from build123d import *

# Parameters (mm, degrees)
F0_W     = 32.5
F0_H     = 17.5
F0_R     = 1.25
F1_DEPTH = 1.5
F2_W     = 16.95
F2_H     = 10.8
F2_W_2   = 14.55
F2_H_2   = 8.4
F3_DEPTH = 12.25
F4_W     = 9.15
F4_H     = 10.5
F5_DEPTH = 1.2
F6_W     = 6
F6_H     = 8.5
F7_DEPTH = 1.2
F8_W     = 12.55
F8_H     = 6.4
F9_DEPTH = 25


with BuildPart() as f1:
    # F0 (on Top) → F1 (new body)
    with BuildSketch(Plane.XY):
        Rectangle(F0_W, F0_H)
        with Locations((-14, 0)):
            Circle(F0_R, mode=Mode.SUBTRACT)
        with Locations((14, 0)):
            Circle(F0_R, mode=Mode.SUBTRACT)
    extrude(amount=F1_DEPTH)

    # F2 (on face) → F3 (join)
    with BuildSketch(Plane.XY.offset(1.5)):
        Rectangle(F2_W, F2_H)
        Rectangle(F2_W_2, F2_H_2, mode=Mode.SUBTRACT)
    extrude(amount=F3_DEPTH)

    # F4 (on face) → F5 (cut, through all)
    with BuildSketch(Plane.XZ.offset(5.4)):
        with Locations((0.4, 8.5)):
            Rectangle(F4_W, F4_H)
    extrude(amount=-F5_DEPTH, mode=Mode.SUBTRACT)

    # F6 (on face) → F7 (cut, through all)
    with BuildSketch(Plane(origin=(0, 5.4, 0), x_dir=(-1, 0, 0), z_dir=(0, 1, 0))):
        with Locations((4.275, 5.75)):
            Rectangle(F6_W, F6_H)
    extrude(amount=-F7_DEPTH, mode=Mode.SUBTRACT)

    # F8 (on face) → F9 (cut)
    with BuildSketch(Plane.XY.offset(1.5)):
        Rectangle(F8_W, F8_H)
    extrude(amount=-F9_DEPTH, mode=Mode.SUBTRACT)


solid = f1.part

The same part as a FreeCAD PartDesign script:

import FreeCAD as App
import Part
import Sketcher
Q = App.Units.Quantity

doc = App.newDocument("Part")
body = doc.addObject("PartDesign::Body", "Body")

# Sketch on XY plane
sketch1 = doc.addObject("Sketcher::SketchObject", "Sketch")
body.addObject(sketch1)
sketch1.AttachmentSupport = (doc.XY_Plane, [""])
sketch1.MapMode = "FlatFace"
sketch1.addGeometry(Part.LineSegment(App.Vector(-16.25, 8.75, 0), App.Vector(-16.25, -8.75, 0)), False)
sketch1.addGeometry(Part.LineSegment(App.Vector(-16.25, -8.75, 0), App.Vector(16.25, -8.75, 0)), False)
sketch1.addGeometry(Part.LineSegment(App.Vector(16.25, -8.75, 0), App.Vector(16.25, 8.75, 0)), False)
sketch1.addGeometry(Part.LineSegment(App.Vector(16.25, 8.75, 0), App.Vector(-16.25, 8.75, 0)), False)
sketch1.addGeometry(Part.Circle(App.Vector(-14, 0, 0), App.Vector(0, 0, 1), 1.25), False)
sketch1.addGeometry(Part.Circle(App.Vector(14, 0, 0), App.Vector(0, 0, 1), 1.25), False)
sketch1.addConstraint(Sketcher.Constraint("Coincident", 0, 2, 1, 1))
sketch1.addConstraint(Sketcher.Constraint("Coincident", 1, 2, 2, 1))
sketch1.addConstraint(Sketcher.Constraint("Coincident", 2, 2, 3, 1))
sketch1.addConstraint(Sketcher.Constraint("Coincident", 3, 2, 0, 1))
sketch1.addConstraint(Sketcher.Constraint("Vertical", 0))
sketch1.addConstraint(Sketcher.Constraint("Horizontal", 1))
sketch1.addConstraint(Sketcher.Constraint("Vertical", 2))
sketch1.addConstraint(Sketcher.Constraint("Horizontal", 3))
sketch1.addConstraint(Sketcher.Constraint("Equal", 4, 5))
sketch1.addConstraint(Sketcher.Constraint("Symmetric", 4, 3, 5, 3, -1, 1))
sketch1.addConstraint(Sketcher.Constraint("Symmetric", 0, 2, 2, 2, -1, 1))
sketch1.addConstraint(Sketcher.Constraint("PointOnObject", 4, 3, -1))
sketch1.addConstraint(Sketcher.Constraint("Diameter", 4, Q("2.5 mm")))
sketch1.addConstraint(Sketcher.Constraint("DistanceX", 1, 1, 1, 2, Q("32.5 mm")))
sketch1.addConstraint(Sketcher.Constraint("DistanceY", 0, 2, 0, 1, Q("17.5 mm")))
sketch1.addConstraint(Sketcher.Constraint("DistanceX", 4, 3, -1, 1, Q("14 mm")))
pad1 = doc.addObject("PartDesign::Pad", "Pad")
body.addObject(pad1)
pad1.Profile = sketch1
pad1.Length = 1.5

# Sketch on XY plane
sketch2 = doc.addObject("Sketcher::SketchObject", "Sketch001")
body.addObject(sketch2)
sketch2.AttachmentSupport = (doc.XY_Plane, [""])
sketch2.MapMode = "FlatFace"
sketch2.AttachmentOffset = App.Placement(App.Vector(0, 0, 1.5), App.Rotation())
sketch2.addGeometry(Part.LineSegment(App.Vector(-8.475, 5.4, 0), App.Vector(-8.475, -5.4, 0)), False)
sketch2.addGeometry(Part.LineSegment(App.Vector(-8.475, -5.4, 0), App.Vector(8.475, -5.4, 0)), False)
sketch2.addGeometry(Part.LineSegment(App.Vector(8.475, -5.4, 0), App.Vector(8.475, 5.4, 0)), False)
sketch2.addGeometry(Part.LineSegment(App.Vector(8.475, 5.4, 0), App.Vector(-8.475, 5.4, 0)), False)
sketch2.addGeometry(Part.LineSegment(App.Vector(7.275, -4.2, 0), App.Vector(-7.275, -4.2, 0)), False)
sketch2.addGeometry(Part.LineSegment(App.Vector(-7.275, -4.2, 0), App.Vector(-7.275, 4.2, 0)), False)
sketch2.addGeometry(Part.LineSegment(App.Vector(-7.275, 4.2, 0), App.Vector(7.275, 4.2, 0)), False)
sketch2.addGeometry(Part.LineSegment(App.Vector(7.275, 4.2, 0), App.Vector(7.275, -4.2, 0)), False)
sketch2.addConstraint(Sketcher.Constraint("Coincident", 0, 2, 1, 1))
sketch2.addConstraint(Sketcher.Constraint("Coincident", 1, 2, 2, 1))
sketch2.addConstraint(Sketcher.Constraint("Coincident", 2, 2, 3, 1))
sketch2.addConstraint(Sketcher.Constraint("Coincident", 3, 2, 0, 1))
sketch2.addConstraint(Sketcher.Constraint("Coincident", 4, 2, 5, 1))
sketch2.addConstraint(Sketcher.Constraint("Coincident", 5, 2, 6, 1))
sketch2.addConstraint(Sketcher.Constraint("Coincident", 6, 2, 7, 1))
sketch2.addConstraint(Sketcher.Constraint("Coincident", 7, 2, 4, 1))
sketch2.addConstraint(Sketcher.Constraint("Vertical", 0))
sketch2.addConstraint(Sketcher.Constraint("Horizontal", 1))
sketch2.addConstraint(Sketcher.Constraint("Vertical", 2))
sketch2.addConstraint(Sketcher.Constraint("Horizontal", 3))
sketch2.addConstraint(Sketcher.Constraint("Horizontal", 4))
sketch2.addConstraint(Sketcher.Constraint("Vertical", 5))
sketch2.addConstraint(Sketcher.Constraint("Horizontal", 6))
sketch2.addConstraint(Sketcher.Constraint("Vertical", 7))
sketch2.addConstraint(Sketcher.Constraint("Symmetric", 0, 2, 2, 2, -1, 1))
sketch2.addConstraint(Sketcher.Constraint("Symmetric", 4, 2, 6, 2, -1, 1))
sketch2.addConstraint(Sketcher.Constraint("DistanceY", 0, 2, 0, 1, Q("10.8 mm")))
sketch2.addConstraint(Sketcher.Constraint("DistanceY", 5, 1, 5, 2, Q("8.4 mm")))
sketch2.addConstraint(Sketcher.Constraint("DistanceX", 1, 1, 1, 2, Q("16.95 mm")))
sketch2.addConstraint(Sketcher.Constraint("DistanceX", 4, 2, 4, 1, Q("14.55 mm")))
pad2 = doc.addObject("PartDesign::Pad", "Pad001")
body.addObject(pad2)
pad2.Profile = sketch2
pad2.Length = 12.25

# Sketch on XZ plane
sketch3 = doc.addObject("Sketcher::SketchObject", "Sketch002")
body.addObject(sketch3)
sketch3.AttachmentSupport = (doc.XZ_Plane, [""])
sketch3.MapMode = "FlatFace"
sketch3.AttachmentOffset = App.Placement(App.Vector(0, 0, 5.4), App.Rotation())
sketch3.addGeometry(Part.LineSegment(App.Vector(-4.175, 13.75, 0), App.Vector(-4.175, 3.25, 0)), False)
sketch3.addGeometry(Part.LineSegment(App.Vector(-4.175, 3.25, 0), App.Vector(4.975, 3.25, 0)), False)
sketch3.addGeometry(Part.LineSegment(App.Vector(4.975, 3.25, 0), App.Vector(4.975, 13.75, 0)), False)
sketch3.addGeometry(Part.LineSegment(App.Vector(4.975, 13.75, 0), App.Vector(-4.175, 13.75, 0)), False)
sketch3.addConstraint(Sketcher.Constraint("Coincident", 0, 2, 1, 1))
sketch3.addConstraint(Sketcher.Constraint("Coincident", 1, 2, 2, 1))
sketch3.addConstraint(Sketcher.Constraint("Coincident", 2, 2, 3, 1))
sketch3.addConstraint(Sketcher.Constraint("Coincident", 3, 2, 0, 1))
sketch3.addConstraint(Sketcher.Constraint("Vertical", 0))
sketch3.addConstraint(Sketcher.Constraint("Horizontal", 1))
sketch3.addConstraint(Sketcher.Constraint("Vertical", 2))
sketch3.addConstraint(Sketcher.Constraint("Horizontal", 3))
sketch3.addConstraint(Sketcher.Constraint("DistanceY", 0, 2, 0, 1, Q("10.5 mm")))
sketch3.addConstraint(Sketcher.Constraint("DistanceX", 1, 1, 1, 2, Q("9.15 mm")))
sketch3.addConstraint(Sketcher.Constraint("DistanceY", -1, 1, 0, 2, Q("3.25 mm")))
sketch3.addConstraint(Sketcher.Constraint("DistanceX", 0, 2, -1, 1, Q("4.175 mm")))
pocket1 = doc.addObject("PartDesign::Pocket", "Pocket")
body.addObject(pocket1)
pocket1.Profile = sketch3
pocket1.Length = 1.2

# Sketch on XZ plane
sketch4 = doc.addObject("Sketcher::SketchObject", "Sketch003")
body.addObject(sketch4)
sketch4.AttachmentSupport = (doc.XZ_Plane, [""])
sketch4.MapMode = "FlatFace"
sketch4.AttachmentOffset = App.Placement(App.Vector(0, 0, -5.4), App.Rotation())
sketch4.addGeometry(Part.LineSegment(App.Vector(-1.275, 10, 0), App.Vector(-1.275, 1.5, 0)), False)
sketch4.addGeometry(Part.LineSegment(App.Vector(-1.275, 1.5, 0), App.Vector(-7.275, 1.5, 0)), False)
sketch4.addGeometry(Part.LineSegment(App.Vector(-7.275, 1.5, 0), App.Vector(-7.275, 10, 0)), False)
sketch4.addGeometry(Part.LineSegment(App.Vector(-7.275, 10, 0), App.Vector(-1.275, 10, 0)), False)
sketch4.addConstraint(Sketcher.Constraint("Coincident", 0, 2, 1, 1))
sketch4.addConstraint(Sketcher.Constraint("Coincident", 1, 2, 2, 1))
sketch4.addConstraint(Sketcher.Constraint("Coincident", 2, 2, 3, 1))
sketch4.addConstraint(Sketcher.Constraint("Coincident", 3, 2, 0, 1))
sketch4.addConstraint(Sketcher.Constraint("Vertical", 0))
sketch4.addConstraint(Sketcher.Constraint("Horizontal", 1))
sketch4.addConstraint(Sketcher.Constraint("Vertical", 2))
sketch4.addConstraint(Sketcher.Constraint("Horizontal", 3))
sketch4.addConstraint(Sketcher.Constraint("DistanceX", 1, 2, 1, 1, Q("6 mm")))
sketch4.addConstraint(Sketcher.Constraint("DistanceY", 0, 2, 0, 1, Q("8.5 mm")))
sketch4.addConstraint(Sketcher.Constraint("DistanceY", -1, 1, 2, 2, Q("10 mm")))
sketch4.addConstraint(Sketcher.Constraint("DistanceX", 0, 2, -1, 1, Q("1.275 mm")))
pocket2 = doc.addObject("PartDesign::Pocket", "Pocket001")
body.addObject(pocket2)
pocket2.Profile = sketch4
pocket2.Length = 1.2
pocket2.Reversed = True

# Sketch on XY plane
sketch5 = doc.addObject("Sketcher::SketchObject", "Sketch004")
body.addObject(sketch5)
sketch5.AttachmentSupport = (doc.XY_Plane, [""])
sketch5.MapMode = "FlatFace"
sketch5.AttachmentOffset = App.Placement(App.Vector(0, 0, 1.5), App.Rotation())
sketch5.addGeometry(Part.LineSegment(App.Vector(-6.275, 3.2, 0), App.Vector(-6.275, -3.2, 0)), False)
sketch5.addGeometry(Part.LineSegment(App.Vector(-6.275, -3.2, 0), App.Vector(6.275, -3.2, 0)), False)
sketch5.addGeometry(Part.LineSegment(App.Vector(6.275, -3.2, 0), App.Vector(6.275, 3.2, 0)), False)
sketch5.addGeometry(Part.LineSegment(App.Vector(6.275, 3.2, 0), App.Vector(-6.275, 3.2, 0)), False)
sketch5.addConstraint(Sketcher.Constraint("Coincident", 0, 2, 1, 1))
sketch5.addConstraint(Sketcher.Constraint("Coincident", 1, 2, 2, 1))
sketch5.addConstraint(Sketcher.Constraint("Coincident", 2, 2, 3, 1))
sketch5.addConstraint(Sketcher.Constraint("Coincident", 3, 2, 0, 1))
sketch5.addConstraint(Sketcher.Constraint("Vertical", 0))
sketch5.addConstraint(Sketcher.Constraint("Horizontal", 1))
sketch5.addConstraint(Sketcher.Constraint("Vertical", 2))
sketch5.addConstraint(Sketcher.Constraint("Horizontal", 3))
sketch5.addConstraint(Sketcher.Constraint("Symmetric", 0, 2, 2, 2, -1, 1))
sketch5.addConstraint(Sketcher.Constraint("DistanceY", 0, 2, 0, 1, Q("6.4 mm")))
sketch5.addConstraint(Sketcher.Constraint("DistanceX", 1, 1, 1, 2, Q("12.55 mm")))
pocket3 = doc.addObject("PartDesign::Pocket", "Pocket002")
body.addObject(pocket3)
pocket3.Profile = sketch5
pocket3.Length = 25

doc.recompute()
